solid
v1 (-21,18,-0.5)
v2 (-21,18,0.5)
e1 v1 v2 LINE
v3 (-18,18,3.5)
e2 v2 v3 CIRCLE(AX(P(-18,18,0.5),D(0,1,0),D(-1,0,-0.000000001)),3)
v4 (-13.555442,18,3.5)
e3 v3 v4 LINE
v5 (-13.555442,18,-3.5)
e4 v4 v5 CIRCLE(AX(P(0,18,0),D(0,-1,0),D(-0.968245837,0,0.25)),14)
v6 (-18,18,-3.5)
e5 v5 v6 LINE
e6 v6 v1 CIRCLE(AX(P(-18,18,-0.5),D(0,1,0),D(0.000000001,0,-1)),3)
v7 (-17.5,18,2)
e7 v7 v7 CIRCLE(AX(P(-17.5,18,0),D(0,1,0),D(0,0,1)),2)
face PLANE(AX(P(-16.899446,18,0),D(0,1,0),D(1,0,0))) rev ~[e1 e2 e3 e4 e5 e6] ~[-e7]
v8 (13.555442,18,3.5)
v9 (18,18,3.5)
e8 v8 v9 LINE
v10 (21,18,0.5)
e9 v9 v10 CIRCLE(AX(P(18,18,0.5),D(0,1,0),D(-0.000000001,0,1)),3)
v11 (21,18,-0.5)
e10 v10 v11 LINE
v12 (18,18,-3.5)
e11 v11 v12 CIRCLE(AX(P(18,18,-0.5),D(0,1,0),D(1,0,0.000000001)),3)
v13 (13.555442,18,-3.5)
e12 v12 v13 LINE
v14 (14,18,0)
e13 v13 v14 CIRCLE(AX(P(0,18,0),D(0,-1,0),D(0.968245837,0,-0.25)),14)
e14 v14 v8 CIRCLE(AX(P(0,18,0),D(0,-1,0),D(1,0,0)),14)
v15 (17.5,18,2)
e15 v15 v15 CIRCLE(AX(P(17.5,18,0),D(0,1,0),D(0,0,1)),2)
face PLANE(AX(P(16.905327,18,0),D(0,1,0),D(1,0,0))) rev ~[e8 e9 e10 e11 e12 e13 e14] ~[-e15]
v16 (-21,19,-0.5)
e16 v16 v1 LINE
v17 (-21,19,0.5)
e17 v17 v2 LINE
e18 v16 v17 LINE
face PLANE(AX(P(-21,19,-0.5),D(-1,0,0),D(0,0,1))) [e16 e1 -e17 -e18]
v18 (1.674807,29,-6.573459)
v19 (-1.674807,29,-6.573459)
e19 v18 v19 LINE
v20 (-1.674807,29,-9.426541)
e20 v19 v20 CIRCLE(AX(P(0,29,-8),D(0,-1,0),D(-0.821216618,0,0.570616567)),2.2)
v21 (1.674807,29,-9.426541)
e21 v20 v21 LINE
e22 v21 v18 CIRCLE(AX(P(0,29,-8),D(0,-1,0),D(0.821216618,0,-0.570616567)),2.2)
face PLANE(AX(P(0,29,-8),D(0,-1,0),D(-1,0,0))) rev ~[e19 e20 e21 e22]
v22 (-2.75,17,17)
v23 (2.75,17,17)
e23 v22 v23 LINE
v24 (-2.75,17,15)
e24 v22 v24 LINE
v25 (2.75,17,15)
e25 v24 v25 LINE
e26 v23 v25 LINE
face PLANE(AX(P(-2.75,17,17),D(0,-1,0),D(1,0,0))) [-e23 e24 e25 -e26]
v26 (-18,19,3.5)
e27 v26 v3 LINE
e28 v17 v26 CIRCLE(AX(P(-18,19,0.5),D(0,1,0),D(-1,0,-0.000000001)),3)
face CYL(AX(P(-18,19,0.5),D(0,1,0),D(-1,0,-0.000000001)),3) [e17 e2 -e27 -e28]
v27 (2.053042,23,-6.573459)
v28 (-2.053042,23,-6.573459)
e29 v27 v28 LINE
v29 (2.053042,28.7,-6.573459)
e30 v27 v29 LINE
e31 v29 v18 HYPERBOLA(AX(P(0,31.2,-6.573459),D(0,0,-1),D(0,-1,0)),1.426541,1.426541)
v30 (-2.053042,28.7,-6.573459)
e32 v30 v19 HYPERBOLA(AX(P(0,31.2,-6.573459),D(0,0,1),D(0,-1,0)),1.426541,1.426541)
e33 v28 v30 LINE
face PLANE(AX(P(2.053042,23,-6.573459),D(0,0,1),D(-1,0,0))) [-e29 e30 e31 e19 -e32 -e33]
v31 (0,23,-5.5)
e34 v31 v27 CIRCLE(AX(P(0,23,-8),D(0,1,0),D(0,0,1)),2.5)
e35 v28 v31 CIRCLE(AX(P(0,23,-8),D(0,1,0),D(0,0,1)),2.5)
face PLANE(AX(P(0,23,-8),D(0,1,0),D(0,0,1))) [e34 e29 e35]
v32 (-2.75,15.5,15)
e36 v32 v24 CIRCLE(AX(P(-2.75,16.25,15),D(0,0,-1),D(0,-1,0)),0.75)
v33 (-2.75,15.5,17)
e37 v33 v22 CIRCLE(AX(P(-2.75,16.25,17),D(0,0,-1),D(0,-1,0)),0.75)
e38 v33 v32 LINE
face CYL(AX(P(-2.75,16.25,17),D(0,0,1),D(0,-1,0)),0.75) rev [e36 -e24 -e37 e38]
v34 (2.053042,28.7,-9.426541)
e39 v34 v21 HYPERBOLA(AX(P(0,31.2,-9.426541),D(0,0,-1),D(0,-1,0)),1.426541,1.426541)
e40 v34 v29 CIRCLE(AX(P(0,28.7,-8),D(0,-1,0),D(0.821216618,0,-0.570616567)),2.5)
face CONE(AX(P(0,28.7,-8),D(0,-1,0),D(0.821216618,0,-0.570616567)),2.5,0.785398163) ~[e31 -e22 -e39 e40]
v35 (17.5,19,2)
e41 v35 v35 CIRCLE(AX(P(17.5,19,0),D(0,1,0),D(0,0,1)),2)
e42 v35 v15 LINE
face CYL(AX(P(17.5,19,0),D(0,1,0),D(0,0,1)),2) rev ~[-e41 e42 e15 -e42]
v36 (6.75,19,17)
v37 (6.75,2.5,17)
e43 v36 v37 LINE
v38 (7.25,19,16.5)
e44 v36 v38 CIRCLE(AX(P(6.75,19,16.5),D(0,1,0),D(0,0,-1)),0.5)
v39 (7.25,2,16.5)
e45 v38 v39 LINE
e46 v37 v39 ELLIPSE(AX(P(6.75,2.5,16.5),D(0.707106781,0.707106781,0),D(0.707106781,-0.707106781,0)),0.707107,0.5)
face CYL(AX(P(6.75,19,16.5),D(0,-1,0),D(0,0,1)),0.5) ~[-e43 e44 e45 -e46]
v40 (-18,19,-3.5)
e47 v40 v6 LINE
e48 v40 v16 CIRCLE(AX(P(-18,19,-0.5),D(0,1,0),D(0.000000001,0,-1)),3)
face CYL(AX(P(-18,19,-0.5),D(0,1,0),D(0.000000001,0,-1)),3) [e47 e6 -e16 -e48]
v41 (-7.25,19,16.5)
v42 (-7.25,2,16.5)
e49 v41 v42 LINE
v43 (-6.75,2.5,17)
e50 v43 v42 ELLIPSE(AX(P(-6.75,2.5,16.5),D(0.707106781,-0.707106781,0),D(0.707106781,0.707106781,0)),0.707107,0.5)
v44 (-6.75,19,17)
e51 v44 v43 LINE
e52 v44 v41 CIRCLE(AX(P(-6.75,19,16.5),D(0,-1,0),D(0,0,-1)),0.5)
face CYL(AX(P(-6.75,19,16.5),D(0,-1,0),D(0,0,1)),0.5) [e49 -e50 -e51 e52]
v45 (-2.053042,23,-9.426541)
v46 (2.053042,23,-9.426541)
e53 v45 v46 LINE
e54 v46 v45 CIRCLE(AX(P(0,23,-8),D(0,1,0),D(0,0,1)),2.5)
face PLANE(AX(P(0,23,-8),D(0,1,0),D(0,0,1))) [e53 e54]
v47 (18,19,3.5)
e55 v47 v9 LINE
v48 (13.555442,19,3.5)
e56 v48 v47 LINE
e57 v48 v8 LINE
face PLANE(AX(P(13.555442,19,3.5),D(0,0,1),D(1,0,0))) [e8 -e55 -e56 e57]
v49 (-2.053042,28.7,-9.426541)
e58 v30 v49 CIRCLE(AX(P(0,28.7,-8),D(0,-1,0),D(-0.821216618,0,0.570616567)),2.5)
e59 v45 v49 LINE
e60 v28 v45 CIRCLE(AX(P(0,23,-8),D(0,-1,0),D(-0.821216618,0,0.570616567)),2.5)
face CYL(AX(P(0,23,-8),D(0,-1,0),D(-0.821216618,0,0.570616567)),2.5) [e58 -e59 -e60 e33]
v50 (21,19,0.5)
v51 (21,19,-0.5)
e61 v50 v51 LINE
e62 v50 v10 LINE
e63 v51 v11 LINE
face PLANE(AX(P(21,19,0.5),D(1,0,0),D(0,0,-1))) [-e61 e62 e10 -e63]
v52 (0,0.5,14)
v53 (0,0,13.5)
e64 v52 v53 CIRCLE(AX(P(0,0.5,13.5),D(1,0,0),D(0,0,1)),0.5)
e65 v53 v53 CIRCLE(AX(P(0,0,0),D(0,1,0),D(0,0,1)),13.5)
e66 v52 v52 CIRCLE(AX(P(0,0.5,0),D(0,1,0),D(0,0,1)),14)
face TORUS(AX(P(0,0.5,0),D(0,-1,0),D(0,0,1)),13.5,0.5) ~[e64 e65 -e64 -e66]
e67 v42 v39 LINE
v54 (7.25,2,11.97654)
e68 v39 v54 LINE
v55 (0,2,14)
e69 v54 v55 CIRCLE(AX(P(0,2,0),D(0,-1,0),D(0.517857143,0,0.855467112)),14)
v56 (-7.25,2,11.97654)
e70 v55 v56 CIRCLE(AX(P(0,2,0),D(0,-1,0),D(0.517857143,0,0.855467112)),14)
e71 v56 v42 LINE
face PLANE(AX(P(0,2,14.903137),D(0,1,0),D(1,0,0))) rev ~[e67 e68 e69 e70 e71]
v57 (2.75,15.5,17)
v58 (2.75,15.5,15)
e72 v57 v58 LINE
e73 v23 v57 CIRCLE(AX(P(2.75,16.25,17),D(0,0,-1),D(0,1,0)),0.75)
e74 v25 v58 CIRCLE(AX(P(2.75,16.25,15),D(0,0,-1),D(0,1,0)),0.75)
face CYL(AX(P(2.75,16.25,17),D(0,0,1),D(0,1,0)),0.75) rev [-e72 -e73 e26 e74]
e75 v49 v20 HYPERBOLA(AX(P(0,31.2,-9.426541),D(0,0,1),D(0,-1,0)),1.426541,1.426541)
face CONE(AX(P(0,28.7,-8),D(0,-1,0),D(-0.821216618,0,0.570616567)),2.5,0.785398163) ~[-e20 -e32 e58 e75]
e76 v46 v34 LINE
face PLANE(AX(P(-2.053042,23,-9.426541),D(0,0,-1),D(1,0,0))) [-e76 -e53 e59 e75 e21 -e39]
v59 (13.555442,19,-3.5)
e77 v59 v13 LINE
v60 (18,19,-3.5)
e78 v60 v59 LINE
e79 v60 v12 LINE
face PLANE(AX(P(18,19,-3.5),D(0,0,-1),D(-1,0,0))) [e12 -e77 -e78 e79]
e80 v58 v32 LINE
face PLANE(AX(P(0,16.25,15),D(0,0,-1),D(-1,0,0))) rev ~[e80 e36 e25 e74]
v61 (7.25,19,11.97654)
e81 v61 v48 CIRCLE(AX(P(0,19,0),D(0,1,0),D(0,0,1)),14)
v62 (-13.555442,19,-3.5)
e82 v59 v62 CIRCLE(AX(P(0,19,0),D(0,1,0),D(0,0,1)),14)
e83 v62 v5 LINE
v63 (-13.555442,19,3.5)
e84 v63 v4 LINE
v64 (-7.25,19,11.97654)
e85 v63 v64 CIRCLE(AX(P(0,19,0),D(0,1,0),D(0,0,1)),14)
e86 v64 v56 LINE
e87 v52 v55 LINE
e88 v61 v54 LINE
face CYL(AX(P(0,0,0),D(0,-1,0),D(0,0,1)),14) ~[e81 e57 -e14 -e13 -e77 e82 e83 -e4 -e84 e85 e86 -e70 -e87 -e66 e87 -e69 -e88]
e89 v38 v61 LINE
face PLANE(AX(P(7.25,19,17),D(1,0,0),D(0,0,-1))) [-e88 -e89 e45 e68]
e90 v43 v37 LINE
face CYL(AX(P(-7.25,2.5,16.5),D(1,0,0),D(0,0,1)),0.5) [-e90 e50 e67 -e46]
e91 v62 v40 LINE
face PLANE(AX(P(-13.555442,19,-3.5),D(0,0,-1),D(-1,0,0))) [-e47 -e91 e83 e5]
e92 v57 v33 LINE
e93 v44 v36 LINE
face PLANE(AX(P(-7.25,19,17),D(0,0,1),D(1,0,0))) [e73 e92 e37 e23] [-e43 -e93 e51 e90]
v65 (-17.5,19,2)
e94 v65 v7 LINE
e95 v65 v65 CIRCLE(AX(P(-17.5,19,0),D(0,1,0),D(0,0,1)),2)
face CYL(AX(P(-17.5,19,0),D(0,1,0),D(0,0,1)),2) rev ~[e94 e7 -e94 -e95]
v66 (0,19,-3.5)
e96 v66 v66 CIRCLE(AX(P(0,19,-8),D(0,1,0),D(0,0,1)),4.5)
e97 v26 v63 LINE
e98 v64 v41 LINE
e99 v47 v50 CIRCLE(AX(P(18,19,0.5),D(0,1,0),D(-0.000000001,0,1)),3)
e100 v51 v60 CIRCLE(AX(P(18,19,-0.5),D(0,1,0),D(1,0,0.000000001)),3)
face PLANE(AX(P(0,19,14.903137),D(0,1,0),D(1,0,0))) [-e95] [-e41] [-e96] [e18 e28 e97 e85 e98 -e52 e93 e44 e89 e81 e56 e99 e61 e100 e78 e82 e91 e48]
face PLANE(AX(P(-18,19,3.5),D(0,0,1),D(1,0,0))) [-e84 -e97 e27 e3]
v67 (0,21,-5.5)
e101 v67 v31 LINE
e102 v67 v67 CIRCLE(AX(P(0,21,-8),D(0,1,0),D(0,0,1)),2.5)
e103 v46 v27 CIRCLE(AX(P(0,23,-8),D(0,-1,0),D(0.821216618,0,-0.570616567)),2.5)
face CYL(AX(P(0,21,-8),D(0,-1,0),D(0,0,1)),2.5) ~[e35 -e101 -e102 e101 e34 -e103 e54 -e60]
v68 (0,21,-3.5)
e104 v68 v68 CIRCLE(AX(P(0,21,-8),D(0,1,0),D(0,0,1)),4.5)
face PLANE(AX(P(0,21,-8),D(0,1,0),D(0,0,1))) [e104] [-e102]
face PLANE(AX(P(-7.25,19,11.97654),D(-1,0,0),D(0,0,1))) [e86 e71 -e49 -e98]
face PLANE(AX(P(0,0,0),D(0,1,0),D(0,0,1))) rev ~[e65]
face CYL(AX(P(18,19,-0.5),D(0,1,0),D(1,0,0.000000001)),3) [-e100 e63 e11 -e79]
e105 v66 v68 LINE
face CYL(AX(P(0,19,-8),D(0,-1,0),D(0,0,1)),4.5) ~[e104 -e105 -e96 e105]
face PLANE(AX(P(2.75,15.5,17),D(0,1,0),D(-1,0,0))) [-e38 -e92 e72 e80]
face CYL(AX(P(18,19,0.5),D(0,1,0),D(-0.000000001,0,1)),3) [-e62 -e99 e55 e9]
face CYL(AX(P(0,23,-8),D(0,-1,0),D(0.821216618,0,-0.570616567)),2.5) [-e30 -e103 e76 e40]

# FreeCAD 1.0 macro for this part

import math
import FreeCAD as App
import Part
import Sketcher

V = App.Vector
Q = App.Units.Quantity


def edges_at(feature, points):
    """Names of the edges that pass closest to the given points."""
    edges = feature.Shape.Edges
    near = lambda p: min(range(len(edges)), key=lambda i: edges[i].distToShape(Part.Vertex(*p))[0])
    return sorted({f"Edge{near(p) + 1}" for p in points})

doc = App.newDocument("Part")
body = doc.addObject("PartDesign::Body", "Body")

sketch1 = doc.addObject("Sketcher::SketchObject", "Sketch")
body.addObject(sketch1)
sketch1.AttachmentSupport = (doc.XZ_Plane, [""])
sketch1.MapMode = "FlatFace"
sketch1.addGeometry(Part.Circle(V(0, 0, 0), V(0, 0, 1), 14), False)
sketch1.addConstraint([
    Sketcher.Constraint("Coincident", 0, 3, -1, 1),
    Sketcher.Constraint("Diameter", 0, Q("28 mm")),
])
pad1 = doc.addObject("PartDesign::Pad", "Pad")
body.addObject(pad1)
pad1.Profile = sketch1
pad1.Length = 19
pad1.Reversed = True

sketch2 = doc.addObject("Sketcher::SketchObject", "Sketch001")
body.addObject(sketch2)
sketch2.AttachmentSupport = (doc.XZ_Plane, [""])
sketch2.MapMode = "FlatFace"
sketch2.AttachmentOffset = App.Placement(V(0, 0, -19), App.Rotation())
sketch2.addGeometry([
    Part.ArcOfCircle(Part.Circle(V(0, 0, 0), V(0, 0, 1), 14), math.radians(0), math.radians(14.48)),
    Part.LineSegment(V(13.6, 3.5, 0), V(18, 3.5, 0)),
    Part.ArcOfCircle(Part.Circle(V(18, 0.5, 0), V(0, 0, 1), 3), math.radians(0), math.radians(90)),
    Part.LineSegment(V(21, 0.5, 0), V(21, -0.5, 0)),
    Part.ArcOfCircle(Part.Circle(V(18, -0.5, 0), V(0, 0, 1), 3), math.radians(-90), math.radians(0)),
    Part.LineSegment(V(18, -3.5, 0), V(13.6, -3.5, 0)),
    Part.ArcOfCircle(Part.Circle(V(0, 0, 0), V(0, 0, 1), 14), math.radians(-14.48), math.radians(0)),
    Part.Circle(V(17.5, 0, 0), V(0, 0, 1), 2),
    Part.ArcOfCircle(Part.Circle(V(-18, 0.5, 0), V(0, 0, 1), 3), math.radians(90), math.radians(180)),
    Part.LineSegment(V(-18, 3.5, 0), V(-13.6, 3.5, 0)),
    Part.ArcOfCircle(Part.Circle(V(0, 0, 0), V(0, 0, 1), 14), math.radians(166), math.radians(194)),
    Part.LineSegment(V(-13.6, -3.5, 0), V(-18, -3.5, 0)),
    Part.ArcOfCircle(Part.Circle(V(-18, -0.5, 0), V(0, 0, 1), 3), math.radians(180), math.radians(270)),
    Part.LineSegment(V(-21, -0.5, 0), V(-21, 0.5, 0)),
    Part.Circle(V(-17.5, 0, 0), V(0, 0, 1), 2),
], False)
sketch2.addConstraint([
    Sketcher.Constraint("Coincident", 0, 2, 1, 1),
    Sketcher.Constraint("Tangent", 1, 2, 2, 2),
    Sketcher.Constraint("Tangent", 2, 1, 3, 1),
    Sketcher.Constraint("Tangent", 3, 2, 4, 2),
    Sketcher.Constraint("Tangent", 4, 1, 5, 1),
    Sketcher.Constraint("Coincident", 5, 2, 6, 1),
    Sketcher.Constraint("Tangent", 6, 2, 0, 1),
    Sketcher.Constraint("Tangent", 8, 1, 9, 1),
    Sketcher.Constraint("Coincident", 9, 2, 10, 1),
    Sketcher.Constraint("Coincident", 10, 2, 11, 1),
    Sketcher.Constraint("Tangent", 11, 2, 12, 2),
    Sketcher.Constraint("Tangent", 12, 1, 13, 1),
    Sketcher.Constraint("Tangent", 13, 2, 8, 2),
    Sketcher.Constraint("Horizontal", 1),
    Sketcher.Constraint("Vertical", 3),
    Sketcher.Constraint("Horizontal", 5),
    Sketcher.Constraint("Horizontal", 9),
    Sketcher.Constraint("Horizontal", 11),
    Sketcher.Constraint("Vertical", 13),
    Sketcher.Constraint("Coincident", 0, 3, -1, 1),
    Sketcher.Constraint("Coincident", 10, 3, -1, 1),
    Sketcher.Constraint("Equal", 2, 4),
    Sketcher.Constraint("Equal", 0, 6),
    Sketcher.Constraint("Equal", 4, 8),
    Sketcher.Constraint("Equal", 6, 10),
    Sketcher.Constraint("Equal", 8, 12),
    Sketcher.Constraint("Equal", 7, 14),
    Sketcher.Constraint("Symmetric", 4, 3, 8, 3, -1, 1),
    Sketcher.Constraint("Symmetric", 7, 3, 14, 3, -1, 1),
    Sketcher.Constraint("PointOnObject", 7, 3, -1),
    Sketcher.Constraint("PointOnObject", 6, 2, -1),
    Sketcher.Constraint("Horizontal", 2, 3, 8, 3),
    Sketcher.Constraint("Horizontal", 4, 3, 12, 3),
    Sketcher.Constraint("Diameter", 7, Q("4 mm")),
    Sketcher.Constraint("Radius", 0, Q("14 mm")),
    Sketcher.Constraint("Radius", 2, Q("3 mm")),
    Sketcher.Constraint("DistanceY", 3, 2, 3, 1, Q("1 mm")),
    Sketcher.Constraint("DistanceX", -1, 1, 2, 3, Q("18 mm")),
    Sketcher.Constraint("DistanceX", -1, 1, 7, 3, Q("17.5 mm")),
])
pad2 = doc.addObject("PartDesign::Pad", "Pad001")
body.addObject(pad2)
pad2.Profile = sketch2
pad2.Length = 1

sketch3 = doc.addObject("Sketcher::SketchObject", "Sketch002")
body.addObject(sketch3)
sketch3.AttachmentSupport = (doc.XZ_Plane, [""])
sketch3.MapMode = "FlatFace"
sketch3.AttachmentOffset = App.Placement(V(0, 0, -19), App.Rotation())
sketch3.addGeometry([
    Part.LineSegment(V(-7, 17, 0), V(7, 17, 0)),
    Part.LineSegment(V(7, 17, 0), V(7, 12, 0)),
    Part.ArcOfCircle(Part.Circle(V(0, 0, 0), V(0, 0, 1), 14), math.radians(59), math.radians(121)),
    Part.LineSegment(V(-7, 12, 0), V(-7, 17, 0)),
], False)
sketch3.addConstraint([
    Sketcher.Constraint("Coincident", 0, 2, 1, 1),
    Sketcher.Constraint("Coincident", 1, 2, 2, 1),
    Sketcher.Constraint("Coincident", 2, 2, 3, 1),
    Sketcher.Constraint("Coincident", 3, 2, 0, 1),
    Sketcher.Constraint("Horizontal", 0),
    Sketcher.Constraint("Vertical", 1),
    Sketcher.Constraint("Vertical", 3),
    Sketcher.Constraint("Coincident", 2, 3, -1, 1),
    Sketcher.Constraint("Horizontal", 1, 2, 2, 2),
    Sketcher.Constraint("Radius", 2, Q("14 mm")),
    Sketcher.Constraint("DistanceX", 0, 1, 0, 2, Q("14.5 mm")),
    Sketcher.Constraint("DistanceY", -1, 1, 0, 2, Q("17 mm")),
])
pad3 = doc.addObject("PartDesign::Pad", "Pad002")
body.addObject(pad3)
pad3.Profile = sketch3
pad3.Length = 17

sketch4 = doc.addObject("Sketcher::SketchObject", "Sketch003")
body.addObject(sketch4)
sketch4.AttachmentSupport = (doc.XZ_Plane, [""])
sketch4.MapMode = "FlatFace"
sketch4.AttachmentOffset = App.Placement(V(0, 0, -19), App.Rotation())
sketch4.addGeometry(Part.Circle(V(0, -8, 0), V(0, 0, 1), 4.5), False)
sketch4.addConstraint([
    Sketcher.Constraint("PointOnObject", 0, 3, -2),
    Sketcher.Constraint("Diameter", 0, Q("9 mm")),
    Sketcher.Constraint("DistanceY", 0, 3, -1, 1, Q("8 mm")),
])
pad4 = doc.addObject("PartDesign::Pad", "Pad003")
body.addObject(pad4)
pad4.Profile = sketch4
pad4.Length = 2
pad4.Reversed = True

sketch5 = doc.addObject("Sketcher::SketchObject", "Sketch004")
body.addObject(sketch5)
sketch5.AttachmentSupport = (doc.XZ_Plane, [""])
sketch5.MapMode = "FlatFace"
sketch5.AttachmentOffset = App.Placement(V(0, 0, -21), App.Rotation())
sketch5.addGeometry(Part.Circle(V(0, -8, 0), V(0, 0, 1), 2.5), False)
sketch5.addConstraint([
    Sketcher.Constraint("PointOnObject", 0, 3, -2),
    Sketcher.Constraint("Diameter", 0, Q("5 mm")),
    Sketcher.Constraint("DistanceY", 0, 3, -1, 1, Q("8 mm")),
])
pad5 = doc.addObject("PartDesign::Pad", "Pad004")
body.addObject(pad5)
pad5.Profile = sketch5
pad5.Length = 2
pad5.Reversed = True

sketch6 = doc.addObject("Sketcher::SketchObject", "Sketch005")
body.addObject(sketch6)
sketch6.AttachmentSupport = (doc.XZ_Plane, [""])
sketch6.MapMode = "FlatFace"
sketch6.AttachmentOffset = App.Placement(V(0, 0, -23), App.Rotation())
sketch6.addGeometry([
    Part.LineSegment(V(2.1, -9.4, 0), V(-2.1, -9.4, 0)),
    Part.ArcOfCircle(Part.Circle(V(0, -8, 0), V(0, 0, 1), 2.5), math.radians(145), math.radians(215)),
    Part.LineSegment(V(-2.1, -6.6, 0), V(2.1, -6.6, 0)),
    Part.ArcOfCircle(Part.Circle(V(0, -8, 0), V(0, 0, 1), 2.5), math.radians(-35), math.radians(35)),
], False)
sketch6.addConstraint([
    Sketcher.Constraint("Coincident", 0, 2, 1, 2),
    Sketcher.Constraint("Coincident", 1, 1, 2, 1),
    Sketcher.Constraint("Coincident", 2, 2, 3, 2),
    Sketcher.Constraint("Coincident", 3, 1, 0, 1),
    Sketcher.Constraint("Horizontal", 0),
    Sketcher.Constraint("Horizontal", 2),
    Sketcher.Constraint("Coincident", 3, 3, 1, 3),
    Sketcher.Constraint("Equal", 1, 3),
    Sketcher.Constraint("PointOnObject", 1, 3, -2),
    Sketcher.Constraint("Vertical", 0, 2, 1, 1),
    Sketcher.Constraint("Radius", 1, Q("2.5 mm")),
    Sketcher.Constraint("DistanceY", 1, 3, -1, 1, Q("8 mm")),
    Sketcher.Constraint("DistanceX", 0, 2, 0, 1, Q("4.106083 mm")),
])
pad6 = doc.addObject("PartDesign::Pad", "Pad005")
body.addObject(pad6)
pad6.Profile = sketch6
pad6.Length = 6
pad6.Reversed = True

sketch7 = doc.addObject("Sketcher::SketchObject", "Sketch006")
body.addObject(sketch7)
sketch7.AttachmentSupport = (doc.XY_Plane, [""])
sketch7.MapMode = "FlatFace"
sketch7.AttachmentOffset = App.Placement(V(0, 0, 17), App.Rotation())
sketch7.addGeometry([
    Part.LineSegment(V(2.8, 17, 0), V(-2.8, 17, 0)),
    Part.ArcOfCircle(Part.Circle(V(-2.8, 16.2, 0), V(0, 0, 1), 0.8), math.radians(90), math.radians(270)),
    Part.LineSegment(V(-2.8, 15.5, 0), V(2.8, 15.5, 0)),
    Part.ArcOfCircle(Part.Circle(V(2.8, 16.2, 0), V(0, 0, 1), 0.8), math.radians(-90), math.radians(90)),
], False)
sketch7.addConstraint([
    Sketcher.Constraint("Tangent", 0, 2, 1, 1),
    Sketcher.Constraint("Tangent", 1, 2, 2, 1),
    Sketcher.Constraint("Tangent", 2, 2, 3, 1),
    Sketcher.Constraint("Tangent", 3, 2, 0, 1),
    Sketcher.Constraint("Horizontal", 0),
    Sketcher.Constraint("Horizontal", 2),
    Sketcher.Constraint("Radius", 1, Q("0.75 mm")),
    Sketcher.Constraint("DistanceX", 0, 2, 0, 1, Q("5.5 mm")),
    Sketcher.Constraint("DistanceY", -1, 1, 0, 2, Q("17 mm")),
    Sketcher.Constraint("DistanceX", 1, 3, -1, 1, Q("2.75 mm")),
])
pocket1 = doc.addObject("PartDesign::Pocket", "Pocket")
body.addObject(pocket1)
pocket1.Profile = sketch7
pocket1.Length = 2
doc.recompute()

chamfer = doc.addObject("PartDesign::Chamfer", "Chamfer")
body.addObject(chamfer)
chamfer.Base = (pocket1, edges_at(pocket1, [(2.5, 29, -8), (-2.5, 29, -8)]))
chamfer.Size = 0.3
doc.recompute()

fillet = doc.addObject("PartDesign::Fillet", "Fillet")
body.addObject(fillet)
fillet.Base = (chamfer, edges_at(chamfer, [(0, 2, 17), (7.25, 10.5, 17), (-7.25, 10.5, 17)]))
fillet.Radius = 0.5
doc.recompute()

fillet2 = doc.addObject("PartDesign::Fillet", "Fillet001")
body.addObject(fillet2)
fillet2.Base = (fillet, edges_at(fillet, [(0, 0, -14)]))
fillet2.Radius = 0.5

doc.recompute()
